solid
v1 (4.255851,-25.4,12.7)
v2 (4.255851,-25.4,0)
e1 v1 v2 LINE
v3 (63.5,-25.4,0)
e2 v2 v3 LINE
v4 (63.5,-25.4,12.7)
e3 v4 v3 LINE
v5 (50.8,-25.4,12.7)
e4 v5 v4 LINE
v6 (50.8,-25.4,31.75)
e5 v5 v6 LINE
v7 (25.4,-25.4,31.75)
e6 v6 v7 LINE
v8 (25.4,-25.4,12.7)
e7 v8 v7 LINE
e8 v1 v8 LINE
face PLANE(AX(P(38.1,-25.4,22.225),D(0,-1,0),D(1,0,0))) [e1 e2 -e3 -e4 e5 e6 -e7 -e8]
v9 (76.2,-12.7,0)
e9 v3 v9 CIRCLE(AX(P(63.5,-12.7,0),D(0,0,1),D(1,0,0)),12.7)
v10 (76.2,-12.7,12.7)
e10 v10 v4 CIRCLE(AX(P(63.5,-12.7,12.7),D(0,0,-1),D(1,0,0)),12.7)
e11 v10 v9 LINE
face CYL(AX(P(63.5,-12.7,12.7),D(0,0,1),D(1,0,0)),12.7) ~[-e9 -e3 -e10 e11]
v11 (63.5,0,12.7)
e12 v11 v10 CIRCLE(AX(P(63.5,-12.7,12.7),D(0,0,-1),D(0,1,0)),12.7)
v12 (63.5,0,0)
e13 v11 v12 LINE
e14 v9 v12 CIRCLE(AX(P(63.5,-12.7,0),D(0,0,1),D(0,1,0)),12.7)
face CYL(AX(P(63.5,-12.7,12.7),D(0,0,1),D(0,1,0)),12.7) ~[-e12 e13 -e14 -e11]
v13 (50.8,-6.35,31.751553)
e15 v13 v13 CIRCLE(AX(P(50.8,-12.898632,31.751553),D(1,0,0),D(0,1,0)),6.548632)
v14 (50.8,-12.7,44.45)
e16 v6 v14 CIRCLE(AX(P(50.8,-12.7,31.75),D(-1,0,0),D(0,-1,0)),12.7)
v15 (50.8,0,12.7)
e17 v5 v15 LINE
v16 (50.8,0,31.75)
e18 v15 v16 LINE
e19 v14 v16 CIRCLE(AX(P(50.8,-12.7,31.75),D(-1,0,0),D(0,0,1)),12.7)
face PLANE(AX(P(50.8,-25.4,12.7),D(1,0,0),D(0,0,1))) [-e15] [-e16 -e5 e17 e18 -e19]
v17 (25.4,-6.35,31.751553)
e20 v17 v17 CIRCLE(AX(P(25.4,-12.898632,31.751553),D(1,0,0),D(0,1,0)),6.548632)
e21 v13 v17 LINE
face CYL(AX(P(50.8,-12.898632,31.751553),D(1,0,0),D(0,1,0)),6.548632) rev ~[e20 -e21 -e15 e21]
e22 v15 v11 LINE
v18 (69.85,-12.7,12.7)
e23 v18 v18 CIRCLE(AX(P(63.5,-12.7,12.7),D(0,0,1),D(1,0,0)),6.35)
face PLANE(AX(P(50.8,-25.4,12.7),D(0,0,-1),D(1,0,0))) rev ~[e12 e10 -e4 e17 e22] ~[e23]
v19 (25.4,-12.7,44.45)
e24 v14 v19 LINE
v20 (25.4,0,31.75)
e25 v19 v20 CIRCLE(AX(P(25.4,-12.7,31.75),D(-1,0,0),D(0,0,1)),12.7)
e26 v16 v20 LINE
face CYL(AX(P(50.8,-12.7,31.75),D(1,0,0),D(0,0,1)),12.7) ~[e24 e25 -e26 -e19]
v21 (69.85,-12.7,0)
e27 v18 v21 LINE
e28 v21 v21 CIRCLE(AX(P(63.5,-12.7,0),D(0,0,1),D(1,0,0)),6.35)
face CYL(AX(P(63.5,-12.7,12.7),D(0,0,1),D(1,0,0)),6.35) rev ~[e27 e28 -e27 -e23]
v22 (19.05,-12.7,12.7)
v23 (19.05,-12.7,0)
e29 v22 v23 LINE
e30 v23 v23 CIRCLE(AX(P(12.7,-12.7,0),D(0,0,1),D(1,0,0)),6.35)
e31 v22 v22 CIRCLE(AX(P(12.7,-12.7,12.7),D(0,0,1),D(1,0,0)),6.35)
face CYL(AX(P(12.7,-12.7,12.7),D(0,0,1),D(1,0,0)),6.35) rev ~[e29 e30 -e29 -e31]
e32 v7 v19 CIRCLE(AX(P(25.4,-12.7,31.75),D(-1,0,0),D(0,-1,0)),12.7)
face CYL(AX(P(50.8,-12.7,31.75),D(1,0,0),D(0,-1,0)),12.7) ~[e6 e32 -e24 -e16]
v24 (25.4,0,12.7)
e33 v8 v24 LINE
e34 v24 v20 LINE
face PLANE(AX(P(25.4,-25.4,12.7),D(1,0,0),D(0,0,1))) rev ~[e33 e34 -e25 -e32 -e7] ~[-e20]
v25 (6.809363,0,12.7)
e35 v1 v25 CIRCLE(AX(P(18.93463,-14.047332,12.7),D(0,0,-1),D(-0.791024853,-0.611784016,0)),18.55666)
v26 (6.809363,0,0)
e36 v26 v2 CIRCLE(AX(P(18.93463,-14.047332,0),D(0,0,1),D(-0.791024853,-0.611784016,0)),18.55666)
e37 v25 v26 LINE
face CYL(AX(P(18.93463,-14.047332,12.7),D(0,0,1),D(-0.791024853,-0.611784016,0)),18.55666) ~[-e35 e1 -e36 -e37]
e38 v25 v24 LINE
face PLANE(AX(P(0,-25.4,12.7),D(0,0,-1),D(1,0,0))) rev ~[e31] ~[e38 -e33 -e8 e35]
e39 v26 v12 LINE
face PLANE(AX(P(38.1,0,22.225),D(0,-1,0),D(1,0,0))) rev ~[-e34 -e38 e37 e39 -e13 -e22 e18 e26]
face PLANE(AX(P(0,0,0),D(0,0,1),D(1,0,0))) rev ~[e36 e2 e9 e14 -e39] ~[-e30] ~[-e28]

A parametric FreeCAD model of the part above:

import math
import FreeCAD as App
import Part
import Sketcher
from FreeCAD import Vector
Q = App.Units.Quantity


def add_polygon(sketch, points):
    """Adds a closed chain of lines whose ends are joined by coincident constraints."""
    first, n = sketch.GeometryCount, len(points)
    for a, b in zip(points, points[1:] + points[:1]):
        sketch.addGeometry(Part.LineSegment(App.Vector(*a, 0), App.Vector(*b, 0)), False)
    for i in range(n):
        sketch.addConstraint(Sketcher.Constraint("Coincident", first + i, 2, first + (i + 1) % n, 1))

doc = App.newDocument("Part")
params = doc.addObject("Spreadsheet::Sheet", "Params")
for row, (alias, value) in enumerate([
    ("sketch1_width", "3 in"),
    ("sketch1_height", "1.75 in"),
    ("pad1_length", "1 in"),
    ("sketch2_width", "1 in"),
    ("sketch2_height", "1.25 in"),
    ("pocket1_length", "1 in"),
    ("sketch3_radius", "0.5 in"),
    ("pocket2_length", "1 in"),
    ("sketch4_diameter", "0.5 in"),
    ("pocket3_length", "1 in"),
    ("sketch5_radius", "0.5 in"),
    ("pocket4_length", "1 in"),
    ("sketch6_diameter", "0.5 in"),
    ("sketch6_height", "1 in"),
    ("pocket5_length", "1 in"),
], start=1):
    params.set(f"A{row}", alias)
    params.set(f"B{row}", "=" + value)
    params.setAlias(f"B{row}", alias)

body = doc.addObject("PartDesign::Body", "Body")

# Sketch on XZ plane
sketch1 = doc.addObject("Sketcher::SketchObject", "Sketch")
body.addObject(sketch1)
sketch1.AttachmentSupport = (doc.XZ_Plane, [""])
sketch1.MapMode = "FlatFace"
add_polygon(sketch1, [(0, 44), (0, 0), (76, 0), (76, 44)])  # lines 0-3
sketch1.addConstraint(Sketcher.Constraint("Vertical", 0))
sketch1.addConstraint(Sketcher.Constraint("Horizontal", 1))
sketch1.addConstraint(Sketcher.Constraint("Vertical", 2))
sketch1.addConstraint(Sketcher.Constraint("Horizontal", 3))
sketch1.addConstraint(Sketcher.Constraint("Coincident", 0, 2, -1, 1))
sketch1.addConstraint(Sketcher.Constraint("DistanceX", 1, 1, 1, 2, Q("3 in")))
sketch1.addConstraint(Sketcher.Constraint("DistanceY", 0, 2, 0, 1, Q("1.75 in")))
sketch1.setExpression("Constraints[9]", "Params.sketch1_width")
sketch1.setExpression("Constraints[10]", "Params.sketch1_height")
pad1 = doc.addObject("PartDesign::Pad", "Pad")
body.addObject(pad1)
pad1.Profile = sketch1
pad1.setExpression("Length", "Params.pad1_length")

# Sketch on XZ plane
sketch2 = doc.addObject("Sketcher::SketchObject", "Sketch001")
body.addObject(sketch2)
sketch2.AttachmentSupport = (doc.XZ_Plane, [""])
sketch2.MapMode = "FlatFace"
sketch2.AttachmentOffset = App.Placement(Vector(0, 0, 1 * 25.4), App.Rotation())
add_polygon(sketch2, [(51, 44), (51, 13), (76, 13), (76, 44)])  # lines 0-3
add_polygon(sketch2, [(0, 44), (0, 13), (25, 13), (25, 44)])  # lines 4-7
sketch2.addConstraint(Sketcher.Constraint("Vertical", 0))
sketch2.addConstraint(Sketcher.Constraint("Horizontal", 1))
sketch2.addConstraint(Sketcher.Constraint("Vertical", 2))
sketch2.addConstraint(Sketcher.Constraint("Horizontal", 3))
sketch2.addConstraint(Sketcher.Constraint("Vertical", 4))
sketch2.addConstraint(Sketcher.Constraint("Horizontal", 5))
sketch2.addConstraint(Sketcher.Constraint("Vertical", 6))
sketch2.addConstraint(Sketcher.Constraint("Horizontal", 7))
sketch2.addConstraint(Sketcher.Constraint("PointOnObject", 4, 2, -2))
sketch2.addConstraint(Sketcher.Constraint("Horizontal", 1, 2, 4, 2))
sketch2.addConstraint(Sketcher.Constraint("Horizontal", 3, 2, 6, 2))
sketch2.addConstraint(Sketcher.Constraint("Equal", 3, 5))
sketch2.addConstraint(Sketcher.Constraint("DistanceX", 1, 1, 1, 2, Q("1 in")))
sketch2.addConstraint(Sketcher.Constraint("DistanceX", -1, 1, 0, 2, Q("2 in")))
sketch2.addConstraint(Sketcher.Constraint("DistanceY", 0, 2, 0, 1, Q("1.25 in")))
sketch2.addConstraint(Sketcher.Constraint("DistanceY", -1, 1, 0, 2, Q("0.5 in")))
sketch2.setExpression("Constraints[20]", "Params.sketch2_width")
sketch2.setExpression("Constraints[22]", "Params.sketch2_height")
pocket1 = doc.addObject("PartDesign::Pocket", "Pocket")
body.addObject(pocket1)
pocket1.Profile = sketch2
pocket1.setExpression("Length", "Params.pocket1_length")

# Sketch on YZ plane
sketch3 = doc.addObject("Sketcher::SketchObject", "Sketch002")
body.addObject(sketch3)
sketch3.AttachmentSupport = (doc.YZ_Plane, [""])
sketch3.MapMode = "FlatFace"
sketch3.AttachmentOffset = App.Placement(Vector(0, 0, 2 * 25.4), App.Rotation())
sketch3.addGeometry(Part.Circle(Vector(-13, 32, 0), Vector(0, 0, 1), 7), False)
sketch3.addGeometry(Part.ArcOfCircle(Part.Circle(Vector(-13, 32, 0), Vector(0, 0, 1), 13), math.radians(90), math.radians(180)), False)
sketch3.addGeometry(Part.LineSegment(Vector(-13, 44, 0), Vector(-25, 44, 0)), False)
sketch3.addGeometry(Part.LineSegment(Vector(-25, 44, 0), Vector(-25, 32, 0)), False)
sketch3.addGeometry(Part.ArcOfCircle(Part.Circle(Vector(-13, 32, 0), Vector(0, 0, 1), 13), math.radians(0), math.radians(90)), False)
sketch3.addGeometry(Part.LineSegment(Vector(0, 32, 0), Vector(0, 44, 0)), False)
sketch3.addGeometry(Part.LineSegment(Vector(0, 44, 0), Vector(-13, 44, 0)), False)
sketch3.addConstraint(Sketcher.Constraint("Tangent", 1, 1, 2, 1))
sketch3.addConstraint(Sketcher.Constraint("Coincident", 2, 2, 3, 1))
sketch3.addConstraint(Sketcher.Constraint("Tangent", 3, 2, 1, 2))
sketch3.addConstraint(Sketcher.Constraint("Tangent", 4, 1, 5, 1))
sketch3.addConstraint(Sketcher.Constraint("Coincident", 5, 2, 6, 1))
sketch3.addConstraint(Sketcher.Constraint("Tangent", 6, 2, 4, 2))
sketch3.addConstraint(Sketcher.Constraint("Horizontal", 2))
sketch3.addConstraint(Sketcher.Constraint("Vertical", 3))
sketch3.addConstraint(Sketcher.Constraint("Vertical", 5))
sketch3.addConstraint(Sketcher.Constraint("Horizontal", 6))
sketch3.addConstraint(Sketcher.Constraint("Coincident", 4, 3, 1, 3))
sketch3.addConstraint(Sketcher.Constraint("Equal", 1, 4))
sketch3.addConstraint(Sketcher.Constraint("PointOnObject", 4, 1, -2))
sketch3.addConstraint(Sketcher.Constraint("Radius", 1, Q("0.5 in")))
sketch3.addConstraint(Sketcher.Constraint("DistanceY", -1, 1, 1, 3, Q("1.25 in")))
sketch3.addConstraint(Sketcher.Constraint("Diameter", 0, Q("13.097263 mm")))
sketch3.addConstraint(Sketcher.Constraint("DistanceX", 0, 3, -1, 1, Q("12.898632 mm")))
sketch3.addConstraint(Sketcher.Constraint("DistanceY", -1, 1, 0, 3, Q("31.751553 mm")))
sketch3.setExpression("Constraints[13]", "Params.sketch3_radius")
pocket2 = doc.addObject("PartDesign::Pocket", "Pocket001")
body.addObject(pocket2)
pocket2.Profile = sketch3
pocket2.setExpression("Length", "Params.pocket2_length")

# Sketch on XY plane
sketch4 = doc.addObject("Sketcher::SketchObject", "Sketch003")
body.addObject(sketch4)
sketch4.AttachmentSupport = (doc.XY_Plane, [""])
sketch4.MapMode = "FlatFace"
sketch4.AttachmentOffset = App.Placement(Vector(0, 0, 0.5 * 25.4), App.Rotation())
sketch4.addGeometry(Part.Circle(Vector(64, -13, 0), Vector(0, 0, 1), 6), False)
sketch4.addConstraint(Sketcher.Constraint("Diameter", 0, Q("0.5 in")))
sketch4.addConstraint(Sketcher.Constraint("DistanceX", -1, 1, 0, 3, Q("2.5 in")))
sketch4.addConstraint(Sketcher.Constraint("DistanceY", 0, 3, -1, 1, Q("0.5 in")))
sketch4.setExpression("Constraints[0]", "Params.sketch4_diameter")
pocket3 = doc.addObject("PartDesign::Pocket", "Pocket002")
body.addObject(pocket3)
pocket3.Profile = sketch4
pocket3.setExpression("Length", "Params.pocket3_length")

# Sketch on XY plane
sketch5 = doc.addObject("Sketcher::SketchObject", "Sketch004")
body.addObject(sketch5)
sketch5.AttachmentSupport = (doc.XY_Plane, [""])
sketch5.MapMode = "FlatFace"
sketch5.AttachmentOffset = App.Placement(Vector(0, 0, 0.5 * 25.4), App.Rotation())
sketch5.addGeometry(Part.ArcOfCircle(Part.Circle(Vector(64, -13, 0), Vector(0, 0, 1), 13), math.radians(0), math.radians(90)), False)
sketch5.addGeometry(Part.LineSegment(Vector(76, -13, 0), Vector(76, 0, 0)), False)
sketch5.addGeometry(Part.LineSegment(Vector(76, 0, 0), Vector(64, 0, 0)), False)
sketch5.addGeometry(Part.ArcOfCircle(Part.Circle(Vector(64, -13, 0), Vector(0, 0, 1), 13), math.radians(-90), math.radians(0)), False)
sketch5.addGeometry(Part.LineSegment(Vector(64, -25, 0), Vector(76, -25, 0)), False)
sketch5.addGeometry(Part.LineSegment(Vector(76, -25, 0), Vector(76, -13, 0)), False)
sketch5.addConstraint(Sketcher.Constraint("Tangent", 0, 1, 1, 1))
sketch5.addConstraint(Sketcher.Constraint("Coincident", 1, 2, 2, 1))
sketch5.addConstraint(Sketcher.Constraint("Tangent", 2, 2, 0, 2))
sketch5.addConstraint(Sketcher.Constraint("Tangent", 3, 1, 4, 1))
sketch5.addConstraint(Sketcher.Constraint("Coincident", 4, 2, 5, 1))
sketch5.addConstraint(Sketcher.Constraint("Tangent", 5, 2, 3, 2))
sketch5.addConstraint(Sketcher.Constraint("Vertical", 1))
sketch5.addConstraint(Sketcher.Constraint("Horizontal", 2))
sketch5.addConstraint(Sketcher.Constraint("Horizontal", 4))
sketch5.addConstraint(Sketcher.Constraint("Vertical", 5))
sketch5.addConstraint(Sketcher.Constraint("Coincident", 3, 3, 0, 3))
sketch5.addConstraint(Sketcher.Constraint("Equal", 0, 3))
sketch5.addConstraint(Sketcher.Constraint("PointOnObject", 1, 2, -1))
sketch5.addConstraint(Sketcher.Constraint("Radius", 0, Q("0.5 in")))
sketch5.addConstraint(Sketcher.Constraint("DistanceX", -1, 1, 0, 1, Q("3 in")))
sketch5.setExpression("Constraints[13]", "Params.sketch5_radius")
pocket4 = doc.addObject("PartDesign::Pocket", "Pocket003")
body.addObject(pocket4)
pocket4.Profile = sketch5
pocket4.setExpression("Length", "Params.pocket4_length")

# Sketch on XY plane
sketch6 = doc.addObject("Sketcher::SketchObject", "Sketch005")
body.addObject(sketch6)
sketch6.AttachmentSupport = (doc.XY_Plane, [""])
sketch6.MapMode = "FlatFace"
sketch6.AttachmentOffset = App.Placement(Vector(0, 0, 0.5 * 25.4), App.Rotation())
sketch6.addGeometry(Part.ArcOfCircle(Part.Circle(Vector(18.9, -14, 0), Vector(0, 0, 1), 18.6), math.radians(131), math.radians(218)), False)
sketch6.addGeometry(Part.LineSegment(Vector(6.8, 0, 0), Vector(0, 0, 0)), False)
sketch6.addGeometry(Part.LineSegment(Vector(0, 0, 0), Vector(0, -25.4, 0)), False)
sketch6.addGeometry(Part.LineSegment(Vector(0, -25.4, 0), Vector(4.3, -25.4, 0)), False)
sketch6.addGeometry(Part.Circle(Vector(12.7, -12.7, 0), Vector(0, 0, 1), 6.3), False)
sketch6.addConstraint(Sketcher.Constraint("Coincident", 0, 1, 1, 1))
sketch6.addConstraint(Sketcher.Constraint("Coincident", 1, 2, 2, 1))
sketch6.addConstraint(Sketcher.Constraint("Coincident", 2, 2, 3, 1))
sketch6.addConstraint(Sketcher.Constraint("Coincident", 3, 2, 0, 2))
sketch6.addConstraint(Sketcher.Constraint("Horizontal", 1))
sketch6.addConstraint(Sketcher.Constraint("Vertical", 2))
sketch6.addConstraint(Sketcher.Constraint("Horizontal", 3))
sketch6.addConstraint(Sketcher.Constraint("Coincident", 1, 2, -1, 1))
sketch6.addConstraint(Sketcher.Constraint("Diameter", 4, Q("0.5 in")))
sketch6.addConstraint(Sketcher.Constraint("DistanceY", 2, 2, 2, 1, Q("1 in")))
sketch6.addConstraint(Sketcher.Constraint("DistanceX", -1, 1, 4, 3, Q("0.5 in")))
sketch6.addConstraint(Sketcher.Constraint("DistanceY", 4, 3, -1, 1, Q("0.5 in")))
sketch6.addConstraint(Sketcher.Constraint("Radius", 0, Q("18.55666 mm")))
sketch6.addConstraint(Sketcher.Constraint("DistanceX", 3, 1, 3, 2, Q("4.255851 mm")))
sketch6.addConstraint(Sketcher.Constraint("DistanceX", 1, 2, 1, 1, Q("6.809363 mm")))
sketch6.setExpression("Constraints[8]", "Params.sketch6_diameter")
sketch6.setExpression("Constraints[9]", "Params.sketch6_height")
pocket5 = doc.addObject("PartDesign::Pocket", "Pocket004")
body.addObject(pocket5)
pocket5.Profile = sketch6
pocket5.setExpression("Length", "Params.pocket5_length")

doc.recompute()
